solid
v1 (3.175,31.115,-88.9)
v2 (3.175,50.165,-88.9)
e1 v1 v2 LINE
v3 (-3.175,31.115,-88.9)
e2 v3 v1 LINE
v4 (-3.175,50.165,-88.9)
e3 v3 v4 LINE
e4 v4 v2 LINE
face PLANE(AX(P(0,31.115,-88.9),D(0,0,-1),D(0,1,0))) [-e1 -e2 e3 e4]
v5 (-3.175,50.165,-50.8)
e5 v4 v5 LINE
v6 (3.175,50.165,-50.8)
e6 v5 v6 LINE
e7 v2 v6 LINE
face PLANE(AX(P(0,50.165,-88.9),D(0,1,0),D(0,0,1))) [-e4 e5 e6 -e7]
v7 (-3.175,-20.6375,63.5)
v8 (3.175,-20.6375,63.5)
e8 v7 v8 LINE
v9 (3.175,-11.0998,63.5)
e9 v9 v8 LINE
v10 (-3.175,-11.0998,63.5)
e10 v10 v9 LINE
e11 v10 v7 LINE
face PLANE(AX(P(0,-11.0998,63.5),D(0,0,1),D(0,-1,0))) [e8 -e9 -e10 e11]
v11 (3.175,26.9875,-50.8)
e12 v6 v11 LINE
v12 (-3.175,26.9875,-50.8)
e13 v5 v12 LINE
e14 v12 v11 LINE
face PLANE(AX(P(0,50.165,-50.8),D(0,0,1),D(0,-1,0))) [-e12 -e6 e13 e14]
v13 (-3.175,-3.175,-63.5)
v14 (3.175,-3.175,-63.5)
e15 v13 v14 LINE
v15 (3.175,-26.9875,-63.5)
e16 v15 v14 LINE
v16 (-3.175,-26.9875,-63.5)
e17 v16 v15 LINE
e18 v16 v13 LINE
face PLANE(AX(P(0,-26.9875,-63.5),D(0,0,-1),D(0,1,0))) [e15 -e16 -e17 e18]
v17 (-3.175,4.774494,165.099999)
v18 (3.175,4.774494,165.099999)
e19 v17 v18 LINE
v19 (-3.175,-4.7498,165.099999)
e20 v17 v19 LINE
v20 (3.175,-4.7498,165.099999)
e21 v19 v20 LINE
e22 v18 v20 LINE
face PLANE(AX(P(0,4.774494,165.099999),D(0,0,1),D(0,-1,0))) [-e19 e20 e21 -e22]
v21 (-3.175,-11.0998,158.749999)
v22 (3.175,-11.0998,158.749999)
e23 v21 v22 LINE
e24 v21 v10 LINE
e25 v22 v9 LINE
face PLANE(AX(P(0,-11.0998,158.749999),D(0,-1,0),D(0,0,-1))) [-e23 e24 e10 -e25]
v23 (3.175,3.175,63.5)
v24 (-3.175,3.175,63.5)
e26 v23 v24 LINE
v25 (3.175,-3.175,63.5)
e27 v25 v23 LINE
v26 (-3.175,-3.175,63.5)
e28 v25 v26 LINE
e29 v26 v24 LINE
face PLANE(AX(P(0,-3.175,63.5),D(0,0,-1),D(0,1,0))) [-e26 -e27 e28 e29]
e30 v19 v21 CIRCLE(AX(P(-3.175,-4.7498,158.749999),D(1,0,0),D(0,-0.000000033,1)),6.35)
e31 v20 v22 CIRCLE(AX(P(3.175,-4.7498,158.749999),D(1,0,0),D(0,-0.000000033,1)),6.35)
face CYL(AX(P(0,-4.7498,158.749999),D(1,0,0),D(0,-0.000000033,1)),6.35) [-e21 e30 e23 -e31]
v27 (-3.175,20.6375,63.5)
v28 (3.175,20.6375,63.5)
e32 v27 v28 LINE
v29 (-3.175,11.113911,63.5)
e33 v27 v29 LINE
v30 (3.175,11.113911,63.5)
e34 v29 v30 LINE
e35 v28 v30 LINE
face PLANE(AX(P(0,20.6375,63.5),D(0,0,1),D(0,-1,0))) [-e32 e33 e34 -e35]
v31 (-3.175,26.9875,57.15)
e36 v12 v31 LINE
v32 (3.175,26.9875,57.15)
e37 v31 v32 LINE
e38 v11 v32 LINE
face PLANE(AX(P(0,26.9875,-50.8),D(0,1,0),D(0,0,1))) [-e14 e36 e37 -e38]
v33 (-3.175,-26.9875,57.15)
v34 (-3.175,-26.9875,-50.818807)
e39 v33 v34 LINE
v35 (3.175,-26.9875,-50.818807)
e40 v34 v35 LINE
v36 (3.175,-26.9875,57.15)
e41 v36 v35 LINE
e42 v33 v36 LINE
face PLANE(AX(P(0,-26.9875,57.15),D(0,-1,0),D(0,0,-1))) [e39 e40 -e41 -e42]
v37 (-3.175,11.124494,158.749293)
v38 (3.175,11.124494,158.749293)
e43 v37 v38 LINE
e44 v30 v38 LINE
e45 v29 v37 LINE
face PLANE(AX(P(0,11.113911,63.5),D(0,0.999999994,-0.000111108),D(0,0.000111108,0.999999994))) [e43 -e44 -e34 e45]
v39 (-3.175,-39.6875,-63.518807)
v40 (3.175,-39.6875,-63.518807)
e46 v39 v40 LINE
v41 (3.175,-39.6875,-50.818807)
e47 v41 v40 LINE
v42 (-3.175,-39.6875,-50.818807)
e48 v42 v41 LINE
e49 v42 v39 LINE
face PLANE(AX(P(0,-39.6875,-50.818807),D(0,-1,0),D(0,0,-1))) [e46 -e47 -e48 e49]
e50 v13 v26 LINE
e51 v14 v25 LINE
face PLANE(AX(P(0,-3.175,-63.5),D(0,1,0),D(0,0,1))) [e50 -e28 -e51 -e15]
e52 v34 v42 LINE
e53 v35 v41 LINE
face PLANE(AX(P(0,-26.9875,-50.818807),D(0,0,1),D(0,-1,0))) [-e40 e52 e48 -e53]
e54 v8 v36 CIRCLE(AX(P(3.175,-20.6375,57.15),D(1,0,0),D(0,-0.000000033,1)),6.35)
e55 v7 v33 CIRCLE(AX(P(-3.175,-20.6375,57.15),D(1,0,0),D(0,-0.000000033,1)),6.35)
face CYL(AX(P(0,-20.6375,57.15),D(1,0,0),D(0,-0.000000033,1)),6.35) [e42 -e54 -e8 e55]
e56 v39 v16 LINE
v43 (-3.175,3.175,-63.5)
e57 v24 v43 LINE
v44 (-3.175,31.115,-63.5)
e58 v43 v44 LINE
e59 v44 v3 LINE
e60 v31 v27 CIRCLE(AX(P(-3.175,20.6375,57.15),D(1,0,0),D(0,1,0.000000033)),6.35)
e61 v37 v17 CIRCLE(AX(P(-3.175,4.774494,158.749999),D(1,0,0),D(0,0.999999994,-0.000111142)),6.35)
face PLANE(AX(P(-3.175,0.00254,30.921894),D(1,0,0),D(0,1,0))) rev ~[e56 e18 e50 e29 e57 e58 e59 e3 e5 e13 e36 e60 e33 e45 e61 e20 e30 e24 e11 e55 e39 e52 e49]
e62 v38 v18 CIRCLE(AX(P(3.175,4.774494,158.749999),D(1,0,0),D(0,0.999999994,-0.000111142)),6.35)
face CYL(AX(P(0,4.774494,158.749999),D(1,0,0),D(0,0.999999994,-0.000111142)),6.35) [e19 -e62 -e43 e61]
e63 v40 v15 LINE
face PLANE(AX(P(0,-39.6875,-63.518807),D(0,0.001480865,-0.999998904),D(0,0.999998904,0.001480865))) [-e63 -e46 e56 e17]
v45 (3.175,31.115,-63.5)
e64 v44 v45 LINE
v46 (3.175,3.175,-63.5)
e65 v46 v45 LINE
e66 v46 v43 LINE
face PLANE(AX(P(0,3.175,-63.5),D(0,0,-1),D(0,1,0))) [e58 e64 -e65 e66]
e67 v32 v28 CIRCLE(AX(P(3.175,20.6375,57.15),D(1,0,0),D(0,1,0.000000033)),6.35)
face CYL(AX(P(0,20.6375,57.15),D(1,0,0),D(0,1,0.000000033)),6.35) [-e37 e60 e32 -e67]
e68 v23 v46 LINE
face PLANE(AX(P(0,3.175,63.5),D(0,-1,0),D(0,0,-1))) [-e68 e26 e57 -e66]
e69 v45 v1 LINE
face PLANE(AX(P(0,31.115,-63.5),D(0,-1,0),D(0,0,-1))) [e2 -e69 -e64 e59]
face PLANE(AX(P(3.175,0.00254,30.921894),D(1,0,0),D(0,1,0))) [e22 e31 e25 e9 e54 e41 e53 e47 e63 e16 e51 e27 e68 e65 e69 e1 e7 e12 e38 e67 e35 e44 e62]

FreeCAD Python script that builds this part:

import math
import FreeCAD as App
import Part
import Sketcher
from FreeCAD import Vector
Q = App.Units.Quantity

doc = App.newDocument("Part")
body = doc.addObject("PartDesign::Body", "Body")

# Sketch on YZ plane
sketch1 = body.newObject("Sketcher::SketchObject", "Sketch")
sketch1.AttachmentSupport = (doc.getObject("YZ_Plane"), [""])
sketch1.MapMode = "FlatFace"
sketch1.addGeometry([
    Part.LineSegment(Vector(3, -64, 0), Vector(31, -64, 0)),  # 0
    Part.LineSegment(Vector(31, -64, 0), Vector(31, -89, 0)),  # 1
    Part.LineSegment(Vector(31, -89, 0), Vector(50, -89, 0)),  # 2
    Part.LineSegment(Vector(50, -89, 0), Vector(50, -51, 0)),  # 3
    Part.LineSegment(Vector(50, -51, 0), Vector(27, -51, 0)),  # 4
    Part.LineSegment(Vector(27, -51, 0), Vector(27, 57, 0)),  # 5
    Part.ArcOfCircle(Part.Circle(Vector(21, 57, 0), Vector(0, 0, 1), 6), math.radians(0), math.radians(90)),  # 6
    Part.LineSegment(Vector(21, 64, 0), Vector(11, 64, 0)),  # 7
    Part.LineSegment(Vector(11, 64, 0), Vector(11, 159, 0)),  # 8
    Part.ArcOfCircle(Part.Circle(Vector(5, 159, 0), Vector(0, 0, 1), 6), math.radians(0), math.radians(90)),  # 9
    Part.LineSegment(Vector(5, 165, 0), Vector(-5, 165, 0)),  # 10
    Part.ArcOfCircle(Part.Circle(Vector(-5, 159, 0), Vector(0, 0, 1), 6), math.radians(90), math.radians(180)),  # 11
    Part.LineSegment(Vector(-11, 159, 0), Vector(-11, 64, 0)),  # 12
    Part.LineSegment(Vector(-11, 64, 0), Vector(-21, 64, 0)),  # 13
    Part.ArcOfCircle(Part.Circle(Vector(-21, 57, 0), Vector(0, 0, 1), 6), math.radians(90), math.radians(180)),  # 14
    Part.LineSegment(Vector(-27, 57, 0), Vector(-27, -51, 0)),  # 15
    Part.LineSegment(Vector(-27, -51, 0), Vector(-40, -51, 0)),  # 16
    Part.LineSegment(Vector(-40, -51, 0), Vector(-40, -64, 0)),  # 17
    Part.LineSegment(Vector(-40, -64, 0), Vector(-27, -64, 0)),  # 18
    Part.LineSegment(Vector(-27, -64, 0), Vector(-3, -64, 0)),  # 19
    Part.LineSegment(Vector(-3, -64, 0), Vector(-3, 64, 0)),  # 20
    Part.LineSegment(Vector(-3, 64, 0), Vector(3, 64, 0)),  # 21
    Part.LineSegment(Vector(3, 64, 0), Vector(3, -64, 0)),  # 22
], False)
sketch1.addConstraint([
    Sketcher.Constraint("Coincident", 0, 2, 1, 1),
    Sketcher.Constraint("Coincident", 1, 2, 2, 1),
    Sketcher.Constraint("Coincident", 2, 2, 3, 1),
    Sketcher.Constraint("Coincident", 3, 2, 4, 1),
    Sketcher.Constraint("Coincident", 4, 2, 5, 1),
    Sketcher.Constraint("Tangent", 5, 2, 6, 1),
    Sketcher.Constraint("Tangent", 6, 2, 7, 1),
    Sketcher.Constraint("Coincident", 7, 2, 8, 1),
    Sketcher.Constraint("Tangent", 8, 2, 9, 1),
    Sketcher.Constraint("Tangent", 9, 2, 10, 1),
    Sketcher.Constraint("Tangent", 10, 2, 11, 1),
    Sketcher.Constraint("Tangent", 11, 2, 12, 1),
    Sketcher.Constraint("Coincident", 12, 2, 13, 1),
    Sketcher.Constraint("Tangent", 13, 2, 14, 1),
    Sketcher.Constraint("Tangent", 14, 2, 15, 1),
    Sketcher.Constraint("Coincident", 15, 2, 16, 1),
    Sketcher.Constraint("Coincident", 16, 2, 17, 1),
    Sketcher.Constraint("Coincident", 17, 2, 18, 1),
    Sketcher.Constraint("Coincident", 18, 2, 19, 1),
    Sketcher.Constraint("Coincident", 19, 2, 20, 1),
    Sketcher.Constraint("Coincident", 20, 2, 21, 1),
    Sketcher.Constraint("Coincident", 21, 2, 22, 1),
    Sketcher.Constraint("Coincident", 22, 2, 0, 1),
    Sketcher.Constraint("Horizontal", 0),
    Sketcher.Constraint("Vertical", 1),
    Sketcher.Constraint("Horizontal", 2),
    Sketcher.Constraint("Vertical", 3),
    Sketcher.Constraint("Horizontal", 4),
    Sketcher.Constraint("Vertical", 5),
    Sketcher.Constraint("Horizontal", 7),
    Sketcher.Constraint("Horizontal", 10),
    Sketcher.Constraint("Vertical", 12),
    Sketcher.Constraint("Horizontal", 13),
    Sketcher.Constraint("Vertical", 15),
    Sketcher.Constraint("Horizontal", 16),
    Sketcher.Constraint("Vertical", 17),
    Sketcher.Constraint("Horizontal", 19),
    Sketcher.Constraint("Vertical", 20),
    Sketcher.Constraint("Horizontal", 21),
    Sketcher.Constraint("Vertical", 22),
    Sketcher.Constraint("Equal", 6, 9),
    Sketcher.Constraint("Equal", 9, 11),
    Sketcher.Constraint("Equal", 11, 14),
    Sketcher.Constraint("Symmetric", 19, 2, 21, 2, -1, 1),
    Sketcher.Constraint("Symmetric", 6, 3, 14, 3, -2),
    Sketcher.Constraint("Horizontal", 0, 2, 18, 2),
    Sketcher.Constraint("Horizontal", 13, 2, 20, 2),
    Sketcher.Constraint("Vertical", 15, 2, 18, 2),
    Sketcher.Constraint("Equal", 16, 17),
    Sketcher.Constraint("DistanceY", 1, 2, 1, 1, Q("1 in")),
    Sketcher.Constraint("DistanceY", 20, 1, 20, 2, Q("5 in")),
    Sketcher.Constraint("Radius", 6, Q("0.25 in")),
    Sketcher.Constraint("DistanceX", 0, 1, 0, 2, Q("1.1 in")),
    Sketcher.Constraint("DistanceX", 16, 2, 16, 1, Q("0.5 in")),
    Sketcher.Constraint("DistanceY", 3, 1, 3, 2, Q("1.5 in")),
    Sketcher.Constraint("DistanceY", 6, 3, 9, 3, Q("4 in")),
    Sketcher.Constraint("DistanceX", 2, 1, 2, 2, Q("0.75 in")),
    Sketcher.Constraint("DistanceX", 21, 1, 21, 2, Q("0.25 in")),
    Sketcher.Constraint("DistanceX", 19, 1, 19, 2, Q("0.9375 in")),
    Sketcher.Constraint("DistanceX", 13, 2, 13, 1, Q("0.3755 in")),
    Sketcher.Constraint("DistanceX", 7, 2, 7, 1, Q("9.523589 mm")),
    Sketcher.Constraint("DistanceX", 10, 2, 10, 1, Q("9.524294 mm")),
    Sketcher.Constraint("DistanceY", 15, 2, 15, 1, Q("107.968807 mm")),
])
pad1 = body.newObject("PartDesign::Pad", "Pad")
pad1.Profile = sketch1
pad1.Length = Q("0.25 in")
pad1.Midplane = True

doc.recompute()
